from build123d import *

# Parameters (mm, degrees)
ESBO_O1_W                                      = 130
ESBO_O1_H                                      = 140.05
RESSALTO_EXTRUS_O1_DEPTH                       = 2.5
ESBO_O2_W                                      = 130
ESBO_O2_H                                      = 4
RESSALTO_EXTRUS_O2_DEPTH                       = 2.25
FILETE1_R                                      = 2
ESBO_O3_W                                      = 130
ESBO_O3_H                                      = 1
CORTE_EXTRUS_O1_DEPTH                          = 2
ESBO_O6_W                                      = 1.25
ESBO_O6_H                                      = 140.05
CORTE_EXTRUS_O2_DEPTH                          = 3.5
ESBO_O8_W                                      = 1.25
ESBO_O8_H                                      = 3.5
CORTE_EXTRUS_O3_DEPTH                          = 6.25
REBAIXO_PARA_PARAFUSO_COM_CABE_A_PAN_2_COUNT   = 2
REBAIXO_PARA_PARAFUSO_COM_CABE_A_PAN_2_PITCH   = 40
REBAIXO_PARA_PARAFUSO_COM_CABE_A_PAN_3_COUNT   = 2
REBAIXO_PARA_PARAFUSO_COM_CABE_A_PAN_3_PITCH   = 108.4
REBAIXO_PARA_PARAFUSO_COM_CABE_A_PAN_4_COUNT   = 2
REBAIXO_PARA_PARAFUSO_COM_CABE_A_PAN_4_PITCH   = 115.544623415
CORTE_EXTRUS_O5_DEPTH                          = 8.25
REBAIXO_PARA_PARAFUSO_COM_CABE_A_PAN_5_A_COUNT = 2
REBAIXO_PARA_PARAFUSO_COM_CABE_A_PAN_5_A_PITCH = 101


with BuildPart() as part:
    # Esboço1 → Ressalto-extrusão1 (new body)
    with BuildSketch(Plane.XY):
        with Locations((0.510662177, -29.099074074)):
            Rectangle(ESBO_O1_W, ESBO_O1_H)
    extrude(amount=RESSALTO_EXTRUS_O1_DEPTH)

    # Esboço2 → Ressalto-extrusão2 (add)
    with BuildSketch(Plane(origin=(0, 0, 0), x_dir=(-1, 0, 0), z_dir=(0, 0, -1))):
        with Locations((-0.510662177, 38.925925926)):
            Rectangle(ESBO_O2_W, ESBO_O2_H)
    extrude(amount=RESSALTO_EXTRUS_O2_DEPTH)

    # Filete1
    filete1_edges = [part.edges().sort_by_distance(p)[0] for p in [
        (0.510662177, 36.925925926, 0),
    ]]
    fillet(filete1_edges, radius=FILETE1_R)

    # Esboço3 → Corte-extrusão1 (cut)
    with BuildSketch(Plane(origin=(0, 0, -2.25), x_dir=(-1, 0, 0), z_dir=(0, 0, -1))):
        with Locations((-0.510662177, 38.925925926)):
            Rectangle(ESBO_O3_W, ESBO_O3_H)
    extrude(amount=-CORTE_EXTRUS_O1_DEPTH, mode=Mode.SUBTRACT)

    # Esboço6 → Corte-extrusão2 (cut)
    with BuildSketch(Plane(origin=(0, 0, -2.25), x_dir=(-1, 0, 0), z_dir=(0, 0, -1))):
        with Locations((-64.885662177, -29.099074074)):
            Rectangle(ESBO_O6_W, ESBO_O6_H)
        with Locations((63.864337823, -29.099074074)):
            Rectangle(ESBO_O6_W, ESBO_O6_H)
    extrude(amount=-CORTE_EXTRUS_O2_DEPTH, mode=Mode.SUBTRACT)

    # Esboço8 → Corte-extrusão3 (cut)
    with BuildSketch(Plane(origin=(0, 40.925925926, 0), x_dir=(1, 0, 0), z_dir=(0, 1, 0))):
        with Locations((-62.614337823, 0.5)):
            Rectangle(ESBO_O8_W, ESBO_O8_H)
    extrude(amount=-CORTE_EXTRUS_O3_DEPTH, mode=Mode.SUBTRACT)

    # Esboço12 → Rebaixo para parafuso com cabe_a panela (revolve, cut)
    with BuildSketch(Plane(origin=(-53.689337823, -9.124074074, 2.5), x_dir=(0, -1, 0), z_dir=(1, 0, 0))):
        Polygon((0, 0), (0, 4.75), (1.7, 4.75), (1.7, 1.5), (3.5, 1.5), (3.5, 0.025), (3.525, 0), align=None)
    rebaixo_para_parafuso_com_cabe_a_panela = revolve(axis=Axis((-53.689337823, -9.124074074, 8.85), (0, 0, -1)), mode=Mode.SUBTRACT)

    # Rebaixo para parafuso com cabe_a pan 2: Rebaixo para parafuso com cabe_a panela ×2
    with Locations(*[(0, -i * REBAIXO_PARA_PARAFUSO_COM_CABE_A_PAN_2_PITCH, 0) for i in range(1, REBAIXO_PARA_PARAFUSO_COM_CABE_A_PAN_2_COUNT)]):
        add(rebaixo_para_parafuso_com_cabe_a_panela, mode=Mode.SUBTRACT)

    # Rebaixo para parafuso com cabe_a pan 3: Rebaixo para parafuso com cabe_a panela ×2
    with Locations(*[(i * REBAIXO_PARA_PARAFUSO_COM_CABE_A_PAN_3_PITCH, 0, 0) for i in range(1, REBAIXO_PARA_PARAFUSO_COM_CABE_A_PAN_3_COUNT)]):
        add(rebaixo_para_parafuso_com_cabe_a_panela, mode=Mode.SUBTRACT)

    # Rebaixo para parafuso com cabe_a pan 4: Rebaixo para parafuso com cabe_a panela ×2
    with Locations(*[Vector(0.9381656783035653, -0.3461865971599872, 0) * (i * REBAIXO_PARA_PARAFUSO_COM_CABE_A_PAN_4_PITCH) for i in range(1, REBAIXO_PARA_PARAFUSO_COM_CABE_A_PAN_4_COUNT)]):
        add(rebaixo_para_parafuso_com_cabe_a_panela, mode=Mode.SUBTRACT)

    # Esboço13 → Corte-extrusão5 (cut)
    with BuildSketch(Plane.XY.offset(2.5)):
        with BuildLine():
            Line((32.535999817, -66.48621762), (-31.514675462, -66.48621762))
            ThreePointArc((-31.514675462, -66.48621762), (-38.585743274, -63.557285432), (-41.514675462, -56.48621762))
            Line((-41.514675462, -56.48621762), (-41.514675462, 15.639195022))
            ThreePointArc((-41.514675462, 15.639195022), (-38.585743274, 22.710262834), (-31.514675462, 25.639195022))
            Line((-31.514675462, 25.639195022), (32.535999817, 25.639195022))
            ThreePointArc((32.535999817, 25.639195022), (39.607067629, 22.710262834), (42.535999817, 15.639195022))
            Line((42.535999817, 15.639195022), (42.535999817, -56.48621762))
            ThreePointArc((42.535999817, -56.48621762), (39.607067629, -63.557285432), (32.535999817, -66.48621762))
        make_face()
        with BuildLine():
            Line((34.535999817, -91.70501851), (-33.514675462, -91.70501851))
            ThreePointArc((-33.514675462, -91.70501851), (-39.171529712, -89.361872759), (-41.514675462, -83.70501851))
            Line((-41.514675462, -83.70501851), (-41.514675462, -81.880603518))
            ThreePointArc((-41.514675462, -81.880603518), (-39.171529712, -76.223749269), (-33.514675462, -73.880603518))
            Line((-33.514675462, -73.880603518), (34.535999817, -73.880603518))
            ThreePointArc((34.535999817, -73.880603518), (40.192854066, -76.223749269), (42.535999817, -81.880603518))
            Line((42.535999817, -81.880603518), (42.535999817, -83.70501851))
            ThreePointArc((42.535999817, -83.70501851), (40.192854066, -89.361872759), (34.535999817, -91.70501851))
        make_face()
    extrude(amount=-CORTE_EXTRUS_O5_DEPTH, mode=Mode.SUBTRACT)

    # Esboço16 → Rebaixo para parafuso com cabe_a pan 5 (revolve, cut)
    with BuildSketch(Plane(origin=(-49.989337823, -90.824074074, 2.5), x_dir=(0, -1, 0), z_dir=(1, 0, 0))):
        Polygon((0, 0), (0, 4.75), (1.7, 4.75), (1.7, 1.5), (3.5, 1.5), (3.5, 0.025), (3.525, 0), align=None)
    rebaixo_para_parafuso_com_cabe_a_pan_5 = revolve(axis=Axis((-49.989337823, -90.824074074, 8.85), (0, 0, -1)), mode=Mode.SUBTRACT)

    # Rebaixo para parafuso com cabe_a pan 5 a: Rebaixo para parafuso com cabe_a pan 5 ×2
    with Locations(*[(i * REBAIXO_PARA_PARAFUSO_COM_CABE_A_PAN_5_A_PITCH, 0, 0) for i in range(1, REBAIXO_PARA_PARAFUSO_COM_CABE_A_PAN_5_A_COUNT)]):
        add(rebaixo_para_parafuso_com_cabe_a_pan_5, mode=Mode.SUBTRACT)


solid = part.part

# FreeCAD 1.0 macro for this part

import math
import FreeCAD as App
import Part
import Sketcher
Q = App.Units.Quantity


def edges_at(feature, points):
    """Names of the edges that pass closest to the given points."""
    edges = feature.Shape.Edges
    near = lambda p: min(range(len(edges)), key=lambda i: edges[i].distToShape(Part.Vertex(*p))[0])
    return sorted({f"Edge{near(p) + 1}" for p in points})


def add_polygon(sketch, points):
    """Adds a closed chain of lines whose ends are joined by coincident constraints."""
    first, n = sketch.GeometryCount, len(points)
    for a, b in zip(points, points[1:] + points[:1]):
        sketch.addGeometry(Part.LineSegment(App.Vector(*a, 0), App.Vector(*b, 0)), False)
    for i in range(n):
        sketch.addConstraint(Sketcher.Constraint("Coincident", first + i, 2, first + (i + 1) % n, 1))

doc = App.newDocument("Part")
params = doc.addObject("Spreadsheet::Sheet", "Params")
for row, (alias, value) in enumerate([
    ("sketch1_width", "130 mm"),
    ("sketch1_height", "140.05 mm"),
    ("pad1_length", "2.5 mm"),
    ("sketch2_width", "130 mm"),
    ("sketch2_height", "4 mm"),
    ("pad2_length", "2.25 mm"),
    ("fillet_radius", "2 mm"),
    ("sketch3_width", "130 mm"),
    ("sketch3_height", "1 mm"),
    ("pocket1_length", "2 mm"),
    ("sketch4_width", "1.25 mm"),
    ("sketch4_height", "140.05 mm"),
    ("pocket2_length", "3.5 mm"),
    ("sketch5_height", "3.5 mm"),
    ("sketch5_width", "1.25 mm"),
    ("pocket3_length", "6.25 mm"),
    ("sketch6_width", "1.8 mm"),
    ("sketch6_width2", "1.7 mm"),
    ("sketch6_height", "4.75 mm"),
    ("sketch6_height2", "3.25 mm"),
    ("groove_angle", "360 deg"),
    ("linearpattern_pitch", "40 mm"),
    ("linearpattern2_pitch", "108.4 mm"),
    ("linearpattern3_pitch", "115.544623 mm"),
    ("sketch7_radius", "10 mm"),
    ("sketch7_radius2", "8 mm"),
    ("pocket4_length", "8.25 mm"),
    ("sketch8_width", "1.8 mm"),
    ("sketch8_width2", "1.7 mm"),
    ("sketch8_height", "4.75 mm"),
    ("sketch8_height2", "3.25 mm"),
    ("groove2_angle", "360 deg"),
    ("linearpattern4_pitch", "101 mm"),
], start=1):
    params.set(f"A{row}", alias)
    params.set(f"B{row}", "=" + value)
    params.setAlias(f"B{row}", alias)

body = doc.addObject("PartDesign::Body", "Body")

sketch1 = body.newObject("Sketcher::SketchObject", "Sketch")
sketch1.AttachmentSupport = (doc.getObject("XY_Plane"), [""])
sketch1.MapMode = "FlatFace"
add_polygon(sketch1, [(-64, 41), (-64, -99), (66, -99), (66, 41)])
sketch1.addConstraint([
    Sketcher.Constraint("Vertical", 0),
    Sketcher.Constraint("Horizontal", 1),
    Sketcher.Constraint("Vertical", 2),
    Sketcher.Constraint("Horizontal", 3),
    Sketcher.Constraint("DistanceX", 1, 1, 1, 2, 130.0),
    Sketcher.Constraint("DistanceY", 0, 2, 0, 1, 140.05),
    Sketcher.Constraint("DistanceX", 0, 2, -1, 1, 64.489338),
    Sketcher.Constraint("DistanceY", 0, 2, -1, 1, 99.124074),
])
sketch1.setExpression("Constraints[8]", "Params.sketch1_width")
sketch1.setExpression("Constraints[9]", "Params.sketch1_height")
pad1 = body.newObject("PartDesign::Pad", "Pad")
pad1.Profile = sketch1
pad1.setExpression("Length", "Params.pad1_length")

sketch2 = body.newObject("Sketcher::SketchObject", "Sketch001")
sketch2.AttachmentSupport = (doc.getObject("XY_Plane"), [""])
sketch2.MapMode = "FlatFace"
add_polygon(sketch2, [(65.5, 40.9), (65.5, 36.9), (-64.5, 36.9), (-64.5, 40.9)])
sketch2.addConstraint([
    Sketcher.Constraint("Vertical", 0),
    Sketcher.Constraint("Horizontal", 1),
    Sketcher.Constraint("Vertical", 2),
    Sketcher.Constraint("Horizontal", 3),
    Sketcher.Constraint("DistanceX", 1, 2, 1, 1, 130.0),
    Sketcher.Constraint("DistanceY", 0, 2, 0, 1, 4.0),
    Sketcher.Constraint("DistanceX", -1, 1, 0, 2, 65.510662),
    Sketcher.Constraint("DistanceY", -1, 1, 0, 2, 36.925926),
])
sketch2.setExpression("Constraints[8]", "Params.sketch2_width")
sketch2.setExpression("Constraints[9]", "Params.sketch2_height")
pad2 = body.newObject("PartDesign::Pad", "Pad001")
pad2.Profile = sketch2
pad2.setExpression("Length", "Params.pad2_length")
pad2.Reversed = True
doc.recompute()

fillet = body.newObject("PartDesign::Fillet", "Fillet")
fillet.Base = (pad2, edges_at(pad2, [(0.511, 36.926, 0)]))
fillet.setExpression("Radius", "Params.fillet_radius")

sketch3 = body.newObject("Sketcher::SketchObject", "Sketch002")
sketch3.AttachmentSupport = (doc.getObject("XY_Plane"), [""])
sketch3.MapMode = "FlatFace"
sketch3.AttachmentOffset = App.Placement(App.Vector(0, 0, -2.25), App.Rotation())
add_polygon(sketch3, [(65.5, 39.4), (65.5, 38.4), (-64.5, 38.4), (-64.5, 39.4)])
sketch3.addConstraint([
    Sketcher.Constraint("Vertical", 0),
    Sketcher.Constraint("Horizontal", 1),
    Sketcher.Constraint("Vertical", 2),
    Sketcher.Constraint("Horizontal", 3),
    Sketcher.Constraint("DistanceX", 1, 2, 1, 1, 130.0),
    Sketcher.Constraint("DistanceY", 0, 2, 0, 1, 1.0),
    Sketcher.Constraint("DistanceX", -1, 1, 0, 2, 65.510662),
    Sketcher.Constraint("DistanceY", -1, 1, 0, 2, 38.425926),
])
sketch3.setExpression("Constraints[8]", "Params.sketch3_width")
sketch3.setExpression("Constraints[9]", "Params.sketch3_height")
pocket1 = body.newObject("PartDesign::Pocket", "Pocket")
pocket1.Profile = sketch3
pocket1.setExpression("Length", "Params.pocket1_length")
pocket1.Reversed = True

sketch4 = body.newObject("Sketcher::SketchObject", "Sketch003")
sketch4.AttachmentSupport = (doc.getObject("XY_Plane"), [""])
sketch4.MapMode = "FlatFace"
sketch4.AttachmentOffset = App.Placement(App.Vector(0, 0, -2.25), App.Rotation())
add_polygon(sketch4, [(65.5, 40.9), (65.5, -99.1), (64.3, -99.1), (64.3, 40.9)])
add_polygon(sketch4, [(-63.2, 40.9), (-63.2, -99.1), (-64.5, -99.1), (-64.5, 40.9)])
sketch4.addConstraint([
    Sketcher.Constraint("Vertical", 0),
    Sketcher.Constraint("Horizontal", 1),
    Sketcher.Constraint("Vertical", 2),
    Sketcher.Constraint("Horizontal", 3),
    Sketcher.Constraint("Vertical", 4),
    Sketcher.Constraint("Horizontal", 5),
    Sketcher.Constraint("Vertical", 6),
    Sketcher.Constraint("Horizontal", 7),
    Sketcher.Constraint("Horizontal", 1, 2, 4, 2),
    Sketcher.Constraint("Horizontal", 3, 2, 6, 2),
    Sketcher.Constraint("Equal", 3, 5),
    Sketcher.Constraint("DistanceX", 5, 2, 0, 2, 130.0),
    Sketcher.Constraint("DistanceX", 1, 2, 1, 1, 1.25),
    Sketcher.Constraint("DistanceY", 0, 2, 0, 1, 140.05),
    Sketcher.Constraint("DistanceX", -1, 1, 0, 2, 65.510662),
    Sketcher.Constraint("DistanceY", 0, 2, -1, 1, 99.124074),
])
sketch4.setExpression("Constraints[20]", "Params.sketch4_width")
sketch4.setExpression("Constraints[21]", "Params.sketch4_height")
pocket2 = body.newObject("PartDesign::Pocket", "Pocket001")
pocket2.Profile = sketch4
pocket2.setExpression("Length", "Params.pocket2_length")
pocket2.Reversed = True

sketch5 = body.newObject("Sketcher::SketchObject", "Sketch004")
sketch5.AttachmentSupport = (doc.getObject("XZ_Plane"), [""])
sketch5.MapMode = "FlatFace"
sketch5.AttachmentOffset = App.Placement(App.Vector(0, 0, -40.925926), App.Rotation())
add_polygon(sketch5, [(-63.2, -2.2), (-63.2, 1.2), (-62, 1.2), (-62, -2.2)])
sketch5.addConstraint([
    Sketcher.Constraint("Vertical", 0),
    Sketcher.Constraint("Horizontal", 1),
    Sketcher.Constraint("Vertical", 2),
    Sketcher.Constraint("Horizontal", 3),
    Sketcher.Constraint("DistanceY", 0, 1, 0, 2, 3.5),
    Sketcher.Constraint("DistanceX", 1, 1, 1, 2, 1.25),
    Sketcher.Constraint("DistanceY", -1, 1, 0, 2, 1.25),
    Sketcher.Constraint("DistanceX", 0, 2, -1, 1, 63.239338),
])
sketch5.setExpression("Constraints[8]", "Params.sketch5_height")
sketch5.setExpression("Constraints[9]", "Params.sketch5_width")
pocket3 = body.newObject("PartDesign::Pocket", "Pocket002")
pocket3.Profile = sketch5
pocket3.setExpression("Length", "Params.pocket3_length")
pocket3.Reversed = True

sketch6 = body.newObject("Sketcher::SketchObject", "Sketch005")
sketch6.AttachmentSupport = (doc.getObject("YZ_Plane"), [""])
sketch6.MapMode = "FlatFace"
sketch6.AttachmentOffset = App.Placement(App.Vector(0, 0, -53.689338), App.Rotation())
add_polygon(sketch6, [(-9.124, -2.25), (-9.124, 2.5), (-12.649, 2.5), (-12.624, 2.475), (-12.624, 1), (-10.824, 1), (-10.824, -2.25)])
sketch6.addGeometry(Part.LineSegment(App.Vector(-9.124, 2.5, 0), App.Vector(-9.124, -2.25, 0)), True)
sketch6.addConstraint([
    Sketcher.Constraint("Vertical", 0),
    Sketcher.Constraint("Horizontal", 1),
    Sketcher.Constraint("Vertical", 3),
    Sketcher.Constraint("Horizontal", 4),
    Sketcher.Constraint("Vertical", 5),
    Sketcher.Constraint("Horizontal", 6),
    Sketcher.Constraint("Vertical", 7),
    Sketcher.Constraint("Coincident", 7, 1, 0, 2),
    Sketcher.Constraint("Horizontal", 5, 2, 7, 2),
    Sketcher.Constraint("Angle", 2, Q("-45 deg")),
    Sketcher.Constraint("DistanceX", 4, 1, 4, 2, 1.8),
    Sketcher.Constraint("DistanceX", 6, 1, 6, 2, 1.7),
    Sketcher.Constraint("DistanceY", -1, 1, 3, 2, 1.0),
    Sketcher.Constraint("DistanceY", 0, 1, 0, 2, 4.75),
    Sketcher.Constraint("DistanceY", 5, 2, 5, 1, 3.25),
    Sketcher.Constraint("DistanceX", 1, 2, 1, 1, 3.525),
    Sketcher.Constraint("DistanceX", 0, 2, -1, 1, 9.124074),
])
sketch6.setExpression("Constraints[17]", "Params.sketch6_width")
sketch6.setExpression("Constraints[18]", "Params.sketch6_width2")
sketch6.setExpression("Constraints[20]", "Params.sketch6_height")
sketch6.setExpression("Constraints[21]", "Params.sketch6_height2")
groove = body.newObject("PartDesign::Groove", "Groove")
groove.Profile = sketch6
groove.ReferenceAxis = (sketch6, ["Axis0"])
groove.setExpression("Angle", "Params.groove_angle")
doc.recompute()

linearpattern = body.newObject("PartDesign::LinearPattern", "LinearPattern")
linearpattern.Originals = [groove]
linearpattern.Direction = (doc.getObject("Y_Axis"), [""])
linearpattern.Mode = "offset"
linearpattern.setExpression("Offset", "Params.linearpattern_pitch")
linearpattern.Occurrences = 2
linearpattern.Reversed = True
body.Tip = linearpattern
doc.recompute()

linearpattern2 = body.newObject("PartDesign::LinearPattern", "LinearPattern001")
linearpattern2.Originals = [groove]
linearpattern2.Direction = (doc.getObject("X_Axis"), [""])
linearpattern2.Mode = "offset"
linearpattern2.setExpression("Offset", "Params.linearpattern2_pitch")
linearpattern2.Occurrences = 2
body.Tip = linearpattern2
doc.recompute()

datumline = body.newObject("PartDesign::Line", "DatumLine")
datumline.Placement = App.Placement(App.Vector(0, 0, 0), App.Rotation(App.Vector(0, 0, 1), App.Vector(0.938165678, -0.346186597, 0)))
linearpattern3 = body.newObject("PartDesign::LinearPattern", "LinearPattern002")
linearpattern3.Originals = [groove]
linearpattern3.Direction = (datumline, [""])
linearpattern3.Mode = "offset"
linearpattern3.setExpression("Offset", "Params.linearpattern3_pitch")
linearpattern3.Occurrences = 2
body.Tip = linearpattern3

sketch7 = body.newObject("Sketcher::SketchObject", "Sketch006")
sketch7.AttachmentSupport = (doc.getObject("XY_Plane"), [""])
sketch7.MapMode = "FlatFace"
sketch7.AttachmentOffset = App.Placement(App.Vector(0, 0, 2.5), App.Rotation())
sketch7.addGeometry([
    Part.LineSegment(App.Vector(-31.5, -66.5, 0), App.Vector(32.5, -66.5, 0)),
    Part.ArcOfCircle(Part.Circle(App.Vector(32.5, -56.5, 0), App.Vector(0, 0, 1), 10), math.radians(-90), math.radians(0)),
    Part.LineSegment(App.Vector(42.5, -56.5, 0), App.Vector(42.5, 15.6, 0)),
    Part.ArcOfCircle(Part.Circle(App.Vector(32.5, 15.6, 0), App.Vector(0, 0, 1), 10), math.radians(0), math.radians(90)),
    Part.LineSegment(App.Vector(32.5, 25.6, 0), App.Vector(-31.5, 25.6, 0)),
    Part.ArcOfCircle(Part.Circle(App.Vector(-31.5, 15.6, 0), App.Vector(0, 0, 1), 10), math.radians(90), math.radians(180)),
    Part.LineSegment(App.Vector(-41.5, 15.6, 0), App.Vector(-41.5, -56.5, 0)),
    Part.ArcOfCircle(Part.Circle(App.Vector(-31.5, -56.5, 0), App.Vector(0, 0, 1), 10), math.radians(180), math.radians(270)),
    Part.LineSegment(App.Vector(-33.5, -91.7, 0), App.Vector(34.5, -91.7, 0)),
    Part.ArcOfCircle(Part.Circle(App.Vector(34.5, -83.7, 0), App.Vector(0, 0, 1), 8), math.radians(-90), math.radians(0)),
    Part.LineSegment(App.Vector(42.5, -83.7, 0), App.Vector(42.5, -81.9, 0)),
    Part.ArcOfCircle(Part.Circle(App.Vector(34.5, -81.9, 0), App.Vector(0, 0, 1), 8), math.radians(0), math.radians(90)),
    Part.LineSegment(App.Vector(34.5, -73.9, 0), App.Vector(-33.5, -73.9, 0)),
    Part.ArcOfCircle(Part.Circle(App.Vector(-33.5, -81.9, 0), App.Vector(0, 0, 1), 8), math.radians(90), math.radians(180)),
    Part.LineSegment(App.Vector(-41.5, -81.9, 0), App.Vector(-41.5, -83.7, 0)),
    Part.ArcOfCircle(Part.Circle(App.Vector(-33.5, -83.7, 0), App.Vector(0, 0, 1), 8), math.radians(180), math.radians(270)),
], False)
sketch7.addConstraint([
    Sketcher.Constraint("Tangent", 0, 2, 1, 1),
    Sketcher.Constraint("Tangent", 1, 2, 2, 1),
    Sketcher.Constraint("Tangent", 2, 2, 3, 1),
    Sketcher.Constraint("Tangent", 3, 2, 4, 1),
    Sketcher.Constraint("Tangent", 4, 2, 5, 1),
    Sketcher.Constraint("Tangent", 5, 2, 6, 1),
    Sketcher.Constraint("Tangent", 6, 2, 7, 1),
    Sketcher.Constraint("Tangent", 7, 2, 0, 1),
    Sketcher.Constraint("Tangent", 8, 2, 9, 1),
    Sketcher.Constraint("Tangent", 9, 2, 10, 1),
    Sketcher.Constraint("Tangent", 10, 2, 11, 1),
    Sketcher.Constraint("Tangent", 11, 2, 12, 1),
    Sketcher.Constraint("Tangent", 12, 2, 13, 1),
    Sketcher.Constraint("Tangent", 13, 2, 14, 1),
    Sketcher.Constraint("Tangent", 14, 2, 15, 1),
    Sketcher.Constraint("Tangent", 15, 2, 8, 1),
    Sketcher.Constraint("Horizontal", 0),
    Sketcher.Constraint("Vertical", 2),
    Sketcher.Constraint("Horizontal", 4),
    Sketcher.Constraint("Vertical", 6),
    Sketcher.Constraint("Horizontal", 8),
    Sketcher.Constraint("Vertical", 10),
    Sketcher.Constraint("Horizontal", 12),
    Sketcher.Constraint("Vertical", 14),
    Sketcher.Constraint("Equal", 1, 3),
    Sketcher.Constraint("Equal", 3, 5),
    Sketcher.Constraint("Equal", 5, 7),
    Sketcher.Constraint("Equal", 9, 11),
    Sketcher.Constraint("Equal", 11, 13),
    Sketcher.Constraint("Equal", 13, 15),
    Sketcher.Constraint("Vertical", 2, 2, 9, 2),
    Sketcher.Constraint("Vertical", 6, 2, 13, 2),
    Sketcher.Constraint("Radius", 1, 10.0),
    Sketcher.Constraint("Radius", 9, 8.0),
    Sketcher.Constraint("DistanceX", -1, 1, 1, 3, 32.536),
    Sketcher.Constraint("DistanceY", 9, 3, 1, 3, 27.218801),
    Sketcher.Constraint("DistanceY", 11, 3, 3, 3, 97.519799),
    Sketcher.Constraint("DistanceX", 0, 1, 0, 2, 64.050675),
    Sketcher.Constraint("DistanceY", 2, 1, 2, 2, 72.125413),
    Sketcher.Constraint("DistanceY", 9, 3, -1, 1, 83.705019),
])
sketch7.setExpression("Constraints[32]", "Params.sketch7_radius")
sketch7.setExpression("Constraints[33]", "Params.sketch7_radius2")
pocket4 = body.newObject("PartDesign::Pocket", "Pocket003")
pocket4.Profile = sketch7
pocket4.setExpression("Length", "Params.pocket4_length")

sketch8 = body.newObject("Sketcher::SketchObject", "Sketch007")
sketch8.AttachmentSupport = (doc.getObject("YZ_Plane"), [""])
sketch8.MapMode = "FlatFace"
sketch8.AttachmentOffset = App.Placement(App.Vector(0, 0, -49.989338), App.Rotation())
add_polygon(sketch8, [(-90.824, -2.25), (-90.824, 2.5), (-94.349, 2.5), (-94.324, 2.475), (-94.324, 1), (-92.524, 1), (-92.524, -2.25)])
sketch8.addGeometry(Part.LineSegment(App.Vector(-90.824, 2.5, 0), App.Vector(-90.824, -2.25, 0)), True)
sketch8.addConstraint([
    Sketcher.Constraint("Vertical", 0),
    Sketcher.Constraint("Horizontal", 1),
    Sketcher.Constraint("Vertical", 3),
    Sketcher.Constraint("Horizontal", 4),
    Sketcher.Constraint("Vertical", 5),
    Sketcher.Constraint("Horizontal", 6),
    Sketcher.Constraint("Vertical", 7),
    Sketcher.Constraint("Coincident", 7, 1, 0, 2),
    Sketcher.Constraint("Horizontal", 5, 2, 7, 2),
    Sketcher.Constraint("Angle", 2, Q("-45 deg")),
    Sketcher.Constraint("DistanceX", 4, 1, 4, 2, 1.8),
    Sketcher.Constraint("DistanceX", 6, 1, 6, 2, 1.7),
    Sketcher.Constraint("DistanceY", -1, 1, 3, 2, 1.0),
    Sketcher.Constraint("DistanceY", 0, 1, 0, 2, 4.75),
    Sketcher.Constraint("DistanceY", 5, 2, 5, 1, 3.25),
    Sketcher.Constraint("DistanceX", 1, 2, 1, 1, 3.525),
    Sketcher.Constraint("DistanceX", 0, 2, -1, 1, 90.824074),
])
sketch8.setExpression("Constraints[17]", "Params.sketch8_width")
sketch8.setExpression("Constraints[18]", "Params.sketch8_width2")
sketch8.setExpression("Constraints[20]", "Params.sketch8_height")
sketch8.setExpression("Constraints[21]", "Params.sketch8_height2")
groove2 = body.newObject("PartDesign::Groove", "Groove001")
groove2.Profile = sketch8
groove2.ReferenceAxis = (sketch8, ["Axis0"])
groove2.setExpression("Angle", "Params.groove2_angle")
doc.recompute()

linearpattern4 = body.newObject("PartDesign::LinearPattern", "LinearPattern003")
linearpattern4.Originals = [groove2]
linearpattern4.Direction = (doc.getObject("X_Axis"), [""])
linearpattern4.Mode = "offset"
linearpattern4.setExpression("Offset", "Params.linearpattern4_pitch")
linearpattern4.Occurrences = 2
body.Tip = linearpattern4

doc.recompute()
